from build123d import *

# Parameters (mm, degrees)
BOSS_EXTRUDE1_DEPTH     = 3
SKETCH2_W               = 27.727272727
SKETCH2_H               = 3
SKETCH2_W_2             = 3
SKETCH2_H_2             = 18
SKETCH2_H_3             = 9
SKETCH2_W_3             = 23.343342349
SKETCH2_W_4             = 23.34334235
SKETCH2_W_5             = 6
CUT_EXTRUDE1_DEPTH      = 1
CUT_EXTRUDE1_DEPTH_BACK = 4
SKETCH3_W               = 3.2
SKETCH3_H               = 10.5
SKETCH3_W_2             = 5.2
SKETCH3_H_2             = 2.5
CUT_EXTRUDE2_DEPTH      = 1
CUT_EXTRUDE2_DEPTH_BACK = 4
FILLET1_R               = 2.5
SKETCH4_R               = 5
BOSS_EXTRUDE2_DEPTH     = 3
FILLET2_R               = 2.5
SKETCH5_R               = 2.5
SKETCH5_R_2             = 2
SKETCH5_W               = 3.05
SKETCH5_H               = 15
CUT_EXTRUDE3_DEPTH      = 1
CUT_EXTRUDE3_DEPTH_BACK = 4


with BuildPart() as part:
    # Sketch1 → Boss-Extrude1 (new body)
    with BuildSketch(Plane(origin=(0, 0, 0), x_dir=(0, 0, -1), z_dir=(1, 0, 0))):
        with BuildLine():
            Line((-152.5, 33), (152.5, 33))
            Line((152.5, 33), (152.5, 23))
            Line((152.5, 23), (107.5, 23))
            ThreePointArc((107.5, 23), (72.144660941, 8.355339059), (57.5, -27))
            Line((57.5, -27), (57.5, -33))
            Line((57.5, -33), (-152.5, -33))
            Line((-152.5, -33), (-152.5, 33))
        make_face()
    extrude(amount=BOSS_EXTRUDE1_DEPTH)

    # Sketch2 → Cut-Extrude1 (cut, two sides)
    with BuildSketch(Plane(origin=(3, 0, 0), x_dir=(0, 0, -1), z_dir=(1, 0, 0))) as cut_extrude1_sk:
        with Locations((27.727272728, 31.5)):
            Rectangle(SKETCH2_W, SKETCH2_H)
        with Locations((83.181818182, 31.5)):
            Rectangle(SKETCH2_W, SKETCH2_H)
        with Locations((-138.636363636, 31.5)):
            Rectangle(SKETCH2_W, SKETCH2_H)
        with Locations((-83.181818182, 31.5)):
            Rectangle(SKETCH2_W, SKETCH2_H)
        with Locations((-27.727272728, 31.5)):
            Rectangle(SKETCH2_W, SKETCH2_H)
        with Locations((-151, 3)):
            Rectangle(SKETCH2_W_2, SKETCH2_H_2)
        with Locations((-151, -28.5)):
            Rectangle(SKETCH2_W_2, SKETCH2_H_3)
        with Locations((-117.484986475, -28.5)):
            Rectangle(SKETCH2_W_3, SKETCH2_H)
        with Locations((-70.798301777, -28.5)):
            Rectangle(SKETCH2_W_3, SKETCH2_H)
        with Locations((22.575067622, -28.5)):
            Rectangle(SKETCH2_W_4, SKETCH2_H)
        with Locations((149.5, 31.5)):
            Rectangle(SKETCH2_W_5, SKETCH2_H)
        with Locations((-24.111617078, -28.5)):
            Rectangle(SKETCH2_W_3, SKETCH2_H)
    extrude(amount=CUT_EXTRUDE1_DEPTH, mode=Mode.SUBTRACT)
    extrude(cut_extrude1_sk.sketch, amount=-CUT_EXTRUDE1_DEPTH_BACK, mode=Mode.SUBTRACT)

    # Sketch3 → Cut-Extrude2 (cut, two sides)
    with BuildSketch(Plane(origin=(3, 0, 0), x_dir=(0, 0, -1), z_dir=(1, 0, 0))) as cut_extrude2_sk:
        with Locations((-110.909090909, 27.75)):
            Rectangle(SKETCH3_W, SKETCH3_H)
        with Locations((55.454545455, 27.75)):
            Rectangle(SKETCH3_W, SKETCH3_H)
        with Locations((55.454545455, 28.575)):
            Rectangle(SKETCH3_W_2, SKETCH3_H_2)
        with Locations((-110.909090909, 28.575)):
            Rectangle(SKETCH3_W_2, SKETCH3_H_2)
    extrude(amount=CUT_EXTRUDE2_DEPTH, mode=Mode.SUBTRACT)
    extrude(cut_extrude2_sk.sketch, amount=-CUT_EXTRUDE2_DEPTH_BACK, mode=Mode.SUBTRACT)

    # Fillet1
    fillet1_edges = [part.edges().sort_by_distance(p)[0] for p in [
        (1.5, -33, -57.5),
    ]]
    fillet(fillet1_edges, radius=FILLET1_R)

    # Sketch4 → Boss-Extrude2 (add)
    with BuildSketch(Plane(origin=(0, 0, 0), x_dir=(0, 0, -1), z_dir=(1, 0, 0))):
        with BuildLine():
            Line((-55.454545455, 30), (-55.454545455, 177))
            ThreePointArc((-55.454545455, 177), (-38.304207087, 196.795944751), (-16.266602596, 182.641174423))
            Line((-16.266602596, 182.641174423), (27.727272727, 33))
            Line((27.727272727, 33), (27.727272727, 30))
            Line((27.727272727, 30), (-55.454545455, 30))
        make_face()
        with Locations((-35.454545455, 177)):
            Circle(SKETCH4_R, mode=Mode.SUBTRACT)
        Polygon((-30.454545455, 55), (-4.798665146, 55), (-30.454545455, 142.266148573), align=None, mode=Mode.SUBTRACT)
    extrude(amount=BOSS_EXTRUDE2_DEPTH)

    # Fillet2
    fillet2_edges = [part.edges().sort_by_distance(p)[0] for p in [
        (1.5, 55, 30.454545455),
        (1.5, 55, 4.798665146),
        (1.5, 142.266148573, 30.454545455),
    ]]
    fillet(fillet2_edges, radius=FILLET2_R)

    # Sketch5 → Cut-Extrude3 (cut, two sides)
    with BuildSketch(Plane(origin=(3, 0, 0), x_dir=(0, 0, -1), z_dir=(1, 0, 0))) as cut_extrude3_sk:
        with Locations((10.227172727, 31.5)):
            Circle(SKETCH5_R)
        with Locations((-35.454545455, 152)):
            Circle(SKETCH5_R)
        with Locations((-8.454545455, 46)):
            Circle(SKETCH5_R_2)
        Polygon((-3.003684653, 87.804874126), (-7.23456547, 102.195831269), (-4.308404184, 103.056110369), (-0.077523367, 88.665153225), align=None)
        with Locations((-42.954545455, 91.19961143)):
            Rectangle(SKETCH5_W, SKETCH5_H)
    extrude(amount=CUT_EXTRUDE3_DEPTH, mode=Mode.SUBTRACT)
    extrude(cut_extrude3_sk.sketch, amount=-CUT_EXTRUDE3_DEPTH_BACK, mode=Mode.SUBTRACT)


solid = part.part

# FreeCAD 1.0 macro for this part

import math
import FreeCAD as App
import Part
import Sketcher
from FreeCAD import Vector
Q = App.Units.Quantity


def edges_at(feature, points):
    """Names of the edges that pass closest to the given points."""
    edges = feature.Shape.Edges
    near = lambda p: min(range(len(edges)), key=lambda i: edges[i].distToShape(Part.Vertex(*p))[0])
    return sorted({f"Edge{near(p) + 1}" for p in points})


def add_polygon(sketch, points):
    """Adds a closed chain of lines whose ends are joined by coincident constraints."""
    first, n = sketch.GeometryCount, len(points)
    for a, b in zip(points, points[1:] + points[:1]):
        sketch.addGeometry(Part.LineSegment(App.Vector(*a, 0), App.Vector(*b, 0)), False)
    for i in range(n):
        sketch.addConstraint(Sketcher.Constraint("Coincident", first + i, 2, first + (i + 1) % n, 1))

doc = App.newDocument("Part")
params = doc.addObject("Spreadsheet::Sheet", "Params")
for row, (alias, value) in enumerate([
    ("sketch1_radius", "50 mm"),
    ("sketch1_width", "66 mm"),
    ("sketch1_width2", "6 mm"),
    ("sketch1_height", "305 mm"),
    ("sketch1_height2", "210 mm"),
    ("pad1_length", "3 mm"),
    ("sketch2_width", "3 mm"),
    ("sketch2_width2", "18 mm"),
    ("sketch2_width3", "9 mm"),
    ("sketch2_height", "6 mm"),
    ("sketch3_height", "1 mm"),
    ("sketch3_width", "2.5 mm"),
    ("sketch3_height2", "3.2 mm"),
    ("fillet_radius", "2.5 mm"),
    ("sketch4_diameter", "10 mm"),
    ("sketch4_radius", "20 mm"),
    ("sketch4_width", "147 mm"),
    ("sketch4_width2", "3 mm"),
    ("pad2_length", "3 mm"),
    ("fillet2_radius", "2.5 mm"),
    ("sketch5_diameter", "5 mm"),
    ("sketch5_diameter2", "4 mm"),
    ("sketch5_width", "15 mm"),
    ("sketch5_length", "15 mm"),
    ("sketch5_height", "3.05 mm"),
], start=1):
    params.set(f"A{row}", alias)
    params.set(f"B{row}", "=" + value)
    params.setAlias(f"B{row}", alias)

body = doc.addObject("PartDesign::Body", "Body")

# Sketch on YZ plane
sketch1 = body.newObject("Sketcher::SketchObject", "Sketch")
sketch1.AttachmentSupport = (doc.getObject("YZ_Plane"), [""])
sketch1.MapMode = "FlatFace"
sketch1.addGeometry([
    Part.LineSegment(Vector(33, -152, 0), Vector(33, 152, 0)),  # 0
    Part.LineSegment(Vector(33, 152, 0), Vector(-33, 152, 0)),  # 1
    Part.LineSegment(Vector(-33, 152, 0), Vector(-33, -58, 0)),  # 2
    Part.LineSegment(Vector(-33, -58, 0), Vector(-27, -58, 0)),  # 3
    Part.ArcOfCircle(Part.Circle(Vector(-27, -108, 0), Vector(0, 0, 1), 50), math.radians(0), math.radians(90)),  # 4
    Part.LineSegment(Vector(23, -108, 0), Vector(23, -152, 0)),  # 5
    Part.LineSegment(Vector(23, -152, 0), Vector(33, -152, 0)),  # 6
], False)
sketch1.addConstraint([
    Sketcher.Constraint("Coincident", 0, 2, 1, 1),
    Sketcher.Constraint("Coincident", 1, 2, 2, 1),
    Sketcher.Constraint("Coincident", 2, 2, 3, 1),
    Sketcher.Constraint("Tangent", 3, 2, 4, 2),
    Sketcher.Constraint("Tangent", 4, 1, 5, 1),
    Sketcher.Constraint("Coincident", 5, 2, 6, 1),
    Sketcher.Constraint("Coincident", 6, 2, 0, 1),
    Sketcher.Constraint("Vertical", 0),
    Sketcher.Constraint("Horizontal", 1),
    Sketcher.Constraint("Vertical", 2),
    Sketcher.Constraint("Horizontal", 3),
    Sketcher.Constraint("Vertical", 5),
    Sketcher.Constraint("Horizontal", 6),
    Sketcher.Constraint("Symmetric", 1, 2, 6, 2, -1, 1),
    Sketcher.Constraint("Radius", 4, Q("50 mm")),
    Sketcher.Constraint("DistanceX", 1, 2, 1, 1, Q("66 mm")),
    Sketcher.Constraint("DistanceX", 3, 1, 3, 2, Q("6 mm")),
    Sketcher.Constraint("DistanceY", 0, 1, 0, 2, Q("305 mm")),
    Sketcher.Constraint("DistanceY", 2, 2, 2, 1, Q("210 mm")),
])
sketch1.setExpression("Constraints[14]", "Params.sketch1_radius")
sketch1.setExpression("Constraints[15]", "Params.sketch1_width")
sketch1.setExpression("Constraints[16]", "Params.sketch1_width2")
sketch1.setExpression("Constraints[17]", "Params.sketch1_height")
sketch1.setExpression("Constraints[18]", "Params.sketch1_height2")
pad1 = body.newObject("PartDesign::Pad", "Pad")
pad1.Profile = sketch1
pad1.setExpression("Length", "Params.pad1_length")

# Sketch on YZ plane
sketch2 = body.newObject("Sketcher::SketchObject", "Sketch001")
sketch2.AttachmentSupport = (doc.getObject("YZ_Plane"), [""])
sketch2.MapMode = "FlatFace"
sketch2.AttachmentOffset = App.Placement(Vector(0, 0, 3), App.Rotation())
add_polygon(sketch2, [(33, -13.9), (30, -13.9), (30, -41.6), (33, -41.6)])  # lines 0-3
add_polygon(sketch2, [(33, -69.3), (30, -69.3), (30, -97), (33, -97)])  # lines 4-7
add_polygon(sketch2, [(33, 152.5), (30, 152.5), (30, 124.8), (33, 124.8)])  # lines 8-11
add_polygon(sketch2, [(33, 97), (30, 97), (30, 69.3), (33, 69.3)])  # lines 12-15
add_polygon(sketch2, [(33, 41.6), (30, 41.6), (30, 13.9), (33, 13.9)])  # lines 16-19
add_polygon(sketch2, [(12, 152.5), (-6, 152.5), (-6, 149.5), (12, 149.5)])  # lines 20-23
add_polygon(sketch2, [(-24, 152.5), (-33, 152.5), (-33, 149.5), (-24, 149.5)])  # lines 24-27
add_polygon(sketch2, [(-27, 129.2), (-30, 129.2), (-30, 105.8), (-27, 105.8)])  # lines 28-31
add_polygon(sketch2, [(-27, 82.5), (-30, 82.5), (-30, 59.1), (-27, 59.1)])  # lines 32-35
add_polygon(sketch2, [(-27, -10.9), (-30, -10.9), (-30, -34.2), (-27, -34.2)])  # lines 36-39
add_polygon(sketch2, [(33, -146.5), (30, -146.5), (30, -152.5), (33, -152.5)])  # lines 40-43
add_polygon(sketch2, [(-27, 35.8), (-30, 35.8), (-30, 12.4), (-27, 12.4)])  # lines 44-47
sketch2.addConstraint([
    Sketcher.Constraint("Horizontal", 0),
    Sketcher.Constraint("Vertical", 1),
    Sketcher.Constraint("Horizontal", 2),
    Sketcher.Constraint("Vertical", 3),
    Sketcher.Constraint("Horizontal", 4),
    Sketcher.Constraint("Vertical", 5),
    Sketcher.Constraint("Horizontal", 6),
    Sketcher.Constraint("Vertical", 7),
    Sketcher.Constraint("Horizontal", 8),
    Sketcher.Constraint("Vertical", 9),
    Sketcher.Constraint("Horizontal", 10),
    Sketcher.Constraint("Vertical", 11),
    Sketcher.Constraint("Horizontal", 12),
    Sketcher.Constraint("Vertical", 13),
    Sketcher.Constraint("Horizontal", 14),
    Sketcher.Constraint("Vertical", 15),
    Sketcher.Constraint("Horizontal", 16),
    Sketcher.Constraint("Vertical", 17),
    Sketcher.Constraint("Horizontal", 18),
    Sketcher.Constraint("Vertical", 19),
    Sketcher.Constraint("Horizontal", 20),
    Sketcher.Constraint("Vertical", 21),
    Sketcher.Constraint("Horizontal", 22),
    Sketcher.Constraint("Vertical", 23),
    Sketcher.Constraint("Horizontal", 24),
    Sketcher.Constraint("Vertical", 25),
    Sketcher.Constraint("Horizontal", 26),
    Sketcher.Constraint("Vertical", 27),
    Sketcher.Constraint("Horizontal", 28),
    Sketcher.Constraint("Vertical", 29),
    Sketcher.Constraint("Horizontal", 30),
    Sketcher.Constraint("Vertical", 31),
    Sketcher.Constraint("Horizontal", 32),
    Sketcher.Constraint("Vertical", 33),
    Sketcher.Constraint("Horizontal", 34),
    Sketcher.Constraint("Vertical", 35),
    Sketcher.Constraint("Horizontal", 36),
    Sketcher.Constraint("Vertical", 37),
    Sketcher.Constraint("Horizontal", 38),
    Sketcher.Constraint("Vertical", 39),
    Sketcher.Constraint("Horizontal", 40),
    Sketcher.Constraint("Vertical", 41),
    Sketcher.Constraint("Horizontal", 42),
    Sketcher.Constraint("Vertical", 43),
    Sketcher.Constraint("Horizontal", 44),
    Sketcher.Constraint("Vertical", 45),
    Sketcher.Constraint("Horizontal", 46),
    Sketcher.Constraint("Vertical", 47),
    Sketcher.Constraint("Symmetric", 24, 2, 42, 2, -1, 1),
    Sketcher.Constraint("Symmetric", 11, 2, 24, 2, -2),
    Sketcher.Constraint("Symmetric", 5, 2, 12, 2, -1),
    Sketcher.Constraint("Symmetric", 7, 2, 14, 2, -1),
    Sketcher.Constraint("Symmetric", 1, 2, 16, 2, -1),
    Sketcher.Constraint("Symmetric", 3, 2, 18, 2, -1),
    Sketcher.Constraint("Horizontal", 11, 2, 20, 2),
    Sketcher.Constraint("Horizontal", 22, 2, 25, 2),
    Sketcher.Constraint("Vertical", 1, 2, 4, 2),
    Sketcher.Constraint("Vertical", 3, 2, 6, 2),
    Sketcher.Constraint("Vertical", 5, 2, 8, 2),
    Sketcher.Constraint("Vertical", 7, 2, 10, 2),
    Sketcher.Constraint("Vertical", 29, 2, 32, 2),
    Sketcher.Constraint("Vertical", 31, 2, 34, 2),
    Sketcher.Constraint("Vertical", 33, 2, 36, 2),
    Sketcher.Constraint("Vertical", 35, 2, 38, 2),
    Sketcher.Constraint("Vertical", 17, 2, 40, 2),
    Sketcher.Constraint("Vertical", 37, 2, 44, 2),
    Sketcher.Constraint("Vertical", 39, 2, 46, 2),
    Sketcher.Constraint("Equal", 18, 28),
    Sketcher.Constraint("Equal", 3, 5),
    Sketcher.Constraint("Equal", 7, 9),
    Sketcher.Constraint("Equal", 46, 21),
    Sketcher.Constraint("Equal", 31, 33),
    Sketcher.Constraint("Equal", 35, 37),
    Sketcher.Constraint("Equal", 39, 45),
    Sketcher.Constraint("DistanceX", 0, 2, 0, 1, Q("3 mm")),
    Sketcher.Constraint("DistanceX", 20, 2, 20, 1, Q("18 mm")),
    Sketcher.Constraint("DistanceX", 24, 2, 24, 1, Q("9 mm")),
    Sketcher.Constraint("DistanceY", 41, 2, 41, 1, Q("6 mm")),
    Sketcher.Constraint("DistanceX", -1, 1, 0, 2, Q("30 mm")),
    Sketcher.Constraint("DistanceX", 20, 2, -1, 1, Q("6 mm")),
    Sketcher.Constraint("DistanceX", 28, 2, -1, 1, Q("30 mm")),
    Sketcher.Constraint("DistanceY", -1, 1, 8, 2, Q("152.5 mm")),
    Sketcher.Constraint("DistanceY", 1, 2, 1, 1, Q("27.727273 mm")),
    Sketcher.Constraint("DistanceY", 29, 2, 29, 1, Q("23.343342 mm")),
    Sketcher.Constraint("DistanceY", 1, 2, -1, 1, Q("41.590909 mm")),
    Sketcher.Constraint("DistanceY", 4, 2, -1, 1, Q("69.318182 mm")),
    Sketcher.Constraint("DistanceY", -1, 1, 33, 2, Q("59.126631 mm")),
    Sketcher.Constraint("DistanceY", 37, 2, -1, 1, Q("34.246739 mm")),
    Sketcher.Constraint("DistanceY", -1, 1, 44, 2, Q("35.783288 mm")),
    Sketcher.Constraint("DistanceY", -1, 1, 28, 2, Q("129.156658 mm")),
])
sketch2.setExpression("Constraints[122]", "Params.sketch2_width")
sketch2.setExpression("Constraints[123]", "Params.sketch2_width2")
sketch2.setExpression("Constraints[124]", "Params.sketch2_width3")
sketch2.setExpression("Constraints[125]", "Params.sketch2_height")
pocket1 = body.newObject("PartDesign::Pocket", "Pocket")
pocket1.Profile = sketch2
pocket1.Type = "ThroughAll"
pocket1.Midplane = True

# Sketch on YZ plane
sketch3 = body.newObject("Sketcher::SketchObject", "Sketch002")
sketch3.AttachmentSupport = (doc.getObject("YZ_Plane"), [""])
sketch3.MapMode = "FlatFace"
sketch3.AttachmentOffset = App.Placement(Vector(0, 0, 3), App.Rotation())
add_polygon(sketch3, [(27.3, 112.5), (22.5, 112.5), (22.5, 109.3), (27.3, 109.3), (27.3, 108.3), (29.8, 108.3), (29.8, 109.3), (33, 109.3), (33, 112.5), (29.8, 112.5), (29.8, 113.5), (27.3, 113.5)])  # lines 0-11
add_polygon(sketch3, [(27.3, -53.9), (22.5, -53.9), (22.5, -57.1), (27.3, -57.1), (27.3, -58.1), (29.8, -58.1), (29.8, -57.1), (33, -57.1), (33, -53.9), (29.8, -53.9), (29.8, -52.9), (27.3, -52.9)])  # lines 12-23
sketch3.addConstraint([
    Sketcher.Constraint("Horizontal", 0),
    Sketcher.Constraint("Vertical", 1),
    Sketcher.Constraint("Horizontal", 2),
    Sketcher.Constraint("Vertical", 3),
    Sketcher.Constraint("Horizontal", 4),
    Sketcher.Constraint("Vertical", 5),
    Sketcher.Constraint("Horizontal", 6),
    Sketcher.Constraint("Vertical", 7),
    Sketcher.Constraint("Horizontal", 8),
    Sketcher.Constraint("Vertical", 9),
    Sketcher.Constraint("Horizontal", 10),
    Sketcher.Constraint("Vertical", 11),
    Sketcher.Constraint("Horizontal", 12),
    Sketcher.Constraint("Vertical", 13),
    Sketcher.Constraint("Horizontal", 14),
    Sketcher.Constraint("Vertical", 15),
    Sketcher.Constraint("Horizontal", 16),
    Sketcher.Constraint("Vertical", 17),
    Sketcher.Constraint("Horizontal", 18),
    Sketcher.Constraint("Vertical", 19),
    Sketcher.Constraint("Horizontal", 20),
    Sketcher.Constraint("Vertical", 21),
    Sketcher.Constraint("Horizontal", 22),
    Sketcher.Constraint("Vertical", 23),
    Sketcher.Constraint("Horizontal", 2, 2, 5, 2),
    Sketcher.Constraint("Horizontal", 0, 2, 7, 2),
    Sketcher.Constraint("Horizontal", 14, 2, 17, 2),
    Sketcher.Constraint("Horizontal", 12, 2, 19, 2),
    Sketcher.Constraint("Vertical", 5, 2, 8, 2),
    Sketcher.Constraint("Vertical", 3, 2, 10, 2),
    Sketcher.Constraint("Vertical", 1, 2, 12, 2),
    Sketcher.Constraint("Vertical", 11, 2, 14, 2),
    Sketcher.Constraint("Vertical", 9, 2, 16, 2),
    Sketcher.Constraint("Vertical", 7, 2, 18, 2),
    Sketcher.Constraint("Vertical", 17, 2, 20, 2),
    Sketcher.Constraint("Vertical", 15, 2, 22, 2),
    Sketcher.Constraint("Equal", 5, 9),
    Sketcher.Constraint("Equal", 7, 13),
    Sketcher.Constraint("Equal", 11, 15),
    Sketcher.Constraint("Equal", 17, 21),
    Sketcher.Constraint("DistanceY", 3, 2, 3, 1, Q("1 mm")),
    Sketcher.Constraint("DistanceX", 4, 1, 4, 2, Q("2.5 mm")),
    Sketcher.Constraint("DistanceY", 1, 2, 1, 1, Q("3.2 mm")),
    Sketcher.Constraint("DistanceX", -1, 1, 6, 2, Q("33 mm")),
    Sketcher.Constraint("DistanceX", -1, 1, 0, 2, Q("22.5 mm")),
    Sketcher.Constraint("DistanceX", 0, 2, 0, 1, Q("4.825 mm")),
    Sketcher.Constraint("DistanceY", -1, 1, 0, 2, Q("112.509091 mm")),
    Sketcher.Constraint("DistanceY", 12, 2, -1, 1, Q("53.854545 mm")),
])
sketch3.setExpression("Constraints[64]", "Params.sketch3_height")
sketch3.setExpression("Constraints[65]", "Params.sketch3_width")
sketch3.setExpression("Constraints[66]", "Params.sketch3_height2")
pocket2 = body.newObject("PartDesign::Pocket", "Pocket001")
pocket2.Profile = sketch3
pocket2.Type = "ThroughAll"
pocket2.Midplane = True
doc.recompute()

fillet = body.newObject("PartDesign::Fillet", "Fillet")
fillet.Base = (pocket2, edges_at(pocket2, [(1.5, -33, -57.5)]))
fillet.setExpression("Radius", "Params.fillet_radius")

# Sketch on YZ plane
sketch4 = body.newObject("Sketcher::SketchObject", "Sketch003")
sketch4.AttachmentSupport = (doc.getObject("YZ_Plane"), [""])
sketch4.MapMode = "FlatFace"
sketch4.addGeometry(Part.LineSegment(Vector(177, 55.5, 0), Vector(30, 55.5, 0)), False)  # 0
sketch4.addGeometry(Part.LineSegment(Vector(30, 55.5, 0), Vector(30, -27.7, 0)), False)  # 1
sketch4.addGeometry(Part.LineSegment(Vector(30, -27.7, 0), Vector(33, -27.7, 0)), False)  # 2
sketch4.addGeometry(Part.LineSegment(Vector(33, -27.7, 0), Vector(182.6, 16.3, 0)), False)  # 3
sketch4.addGeometry(Part.ArcOfCircle(Part.Circle(Vector(177, 35.5, 0), Vector(0, 0, 1), 20), math.radians(-74), math.radians(90)), False)  # 4
add_polygon(sketch4, [(55, 30.5), (142.3, 30.5), (55, 4.8)])  # lines 5-7
sketch4.addGeometry(Part.Circle(Vector(177, 35.5, 0), Vector(0, 0, 1), 5), False)  # 8
sketch4.addConstraint([
    Sketcher.Constraint("Coincident", 0, 2, 1, 1),
    Sketcher.Constraint("Coincident", 1, 2, 2, 1),
    Sketcher.Constraint("Coincident", 2, 2, 3, 1),
    Sketcher.Constraint("Tangent", 3, 2, 4, 1),
    Sketcher.Constraint("Tangent", 4, 2, 0, 1),
    Sketcher.Constraint("Horizontal", 0),
    Sketcher.Constraint("Vertical", 1),
    Sketcher.Constraint("Horizontal", 2),
    Sketcher.Constraint("Horizontal", 5),
    Sketcher.Constraint("Vertical", 7),
    Sketcher.Constraint("Coincident", 8, 3, 4, 3),
    Sketcher.Constraint("Parallel", 3, 6),
    Sketcher.Constraint("Diameter", 8, Q("10 mm")),
    Sketcher.Constraint("Radius", 4, Q("20 mm")),
    Sketcher.Constraint("DistanceX", 0, 2, 0, 1, Q("147 mm")),
    Sketcher.Constraint("DistanceX", 2, 1, 2, 2, Q("3 mm")),
    Sketcher.Constraint("DistanceX", -1, 1, 4, 3, Q("177 mm")),
    Sketcher.Constraint("DistanceX", -1, 1, 6, 2, Q("55 mm")),
    Sketcher.Constraint("DistanceY", 5, 2, 4, 3, Q("5 mm")),
    Sketcher.Constraint("DistanceX", 5, 1, 5, 2, Q("87.266149 mm")),
    Sketcher.Constraint("DistanceY", 1, 2, 1, 1, Q("83.181818 mm")),
    Sketcher.Constraint("DistanceY", -1, 1, 4, 3, Q("35.454545 mm")),
])
sketch4.setExpression("Constraints[15]", "Params.sketch4_diameter")
sketch4.setExpression("Constraints[16]", "Params.sketch4_radius")
sketch4.setExpression("Constraints[17]", "Params.sketch4_width")
sketch4.setExpression("Constraints[18]", "Params.sketch4_width2")
pad2 = body.newObject("PartDesign::Pad", "Pad001")
pad2.Profile = sketch4
pad2.setExpression("Length", "Params.pad2_length")
doc.recompute()

fillet2 = body.newObject("PartDesign::Fillet", "Fillet001")
fillet2.Base = (pad2, edges_at(pad2, [(1.5, 55, 30.455), (1.5, 55, 4.799), (1.5, 142.266, 30.455)]))
fillet2.setExpression("Radius", "Params.fillet2_radius")

# Sketch on YZ plane
sketch5 = body.newObject("Sketcher::SketchObject", "Sketch004")
sketch5.AttachmentSupport = (doc.getObject("YZ_Plane"), [""])
sketch5.MapMode = "FlatFace"
sketch5.AttachmentOffset = App.Placement(Vector(0, 0, 3), App.Rotation())
sketch5.addGeometry(Part.Circle(Vector(31.5, -10.2, 0), Vector(0, 0, 1), 2.5), False)  # 0
sketch5.addGeometry(Part.Circle(Vector(152, 35.5, 0), Vector(0, 0, 1), 2.5), False)  # 1
sketch5.addGeometry(Part.Circle(Vector(46, 8.5, 0), Vector(0, 0, 1), 2), False)  # 2
add_polygon(sketch5, [(102.2, 7.2), (87.8, 3), (88.7, 0.1), (103.1, 4.3)])  # lines 3-6
add_polygon(sketch5, [(98.7, 44.5), (83.7, 44.5), (83.7, 41.4), (98.7, 41.4)])  # lines 7-10
sketch5.addConstraint([
    Sketcher.Constraint("Horizontal", 7),
    Sketcher.Constraint("Vertical", 8),
    Sketcher.Constraint("Horizontal", 9),
    Sketcher.Constraint("Vertical", 10),
    Sketcher.Constraint("Equal", 0, 1),
    Sketcher.Constraint("Perpendicular", 3, 4),
    Sketcher.Constraint("Perpendicular", 4, 5),
    Sketcher.Constraint("Perpendicular", 5, 6),
    Sketcher.Constraint("Diameter", 0, Q("5 mm")),
    Sketcher.Constraint("Diameter", 2, Q("4 mm")),
    Sketcher.Constraint("DistanceX", 7, 2, 7, 1, Q("15 mm")),
    Sketcher.Constraint("Distance", 3, Q("15 mm")),
    Sketcher.Constraint("DistanceX", -1, 1, 1, 3, Q("152 mm")),
    Sketcher.Constraint("DistanceX", -1, 1, 2, 3, Q("46 mm")),
    Sketcher.Constraint("DistanceY", 2, 3, 1, 3, Q("27 mm")),
    Sketcher.Constraint("DistanceY", 8, 2, 8, 1, Q("3.05 mm")),
    Sketcher.Constraint("DistanceX", -1, 1, 0, 3, Q("31.5 mm")),
    Sketcher.Constraint("Distance", 4, Q("3.05 mm")),
    Sketcher.Constraint("DistanceY", 2, 3, 7, 2, Q("36.025 mm")),
    Sketcher.Constraint("DistanceX", 7, 2, 5, 2, Q("19.356499 mm")),
    Sketcher.Constraint("DistanceX", -1, 1, 5, 2, Q("103.05611 mm")),
    Sketcher.Constraint("DistanceX", -1, 1, 6, 2, Q("102.195831 mm")),
    Sketcher.Constraint("DistanceY", 0, 3, 1, 3, Q("45.681718 mm")),
    Sketcher.Constraint("DistanceY", 3, 2, 2, 3, Q("5.450861 mm")),
    Sketcher.Constraint("DistanceY", 0, 3, -1, 1, Q("10.227173 mm")),
])
sketch5.setExpression("Constraints[16]", "Params.sketch5_diameter")
sketch5.setExpression("Constraints[17]", "Params.sketch5_diameter2")
sketch5.setExpression("Constraints[18]", "Params.sketch5_width")
sketch5.setExpression("Constraints[19]", "Params.sketch5_length")
sketch5.setExpression("Constraints[23]", "Params.sketch5_height")
pocket3 = body.newObject("PartDesign::Pocket", "Pocket002")
pocket3.Profile = sketch5
pocket3.Type = "ThroughAll"
pocket3.Midplane = True

doc.recompute()
